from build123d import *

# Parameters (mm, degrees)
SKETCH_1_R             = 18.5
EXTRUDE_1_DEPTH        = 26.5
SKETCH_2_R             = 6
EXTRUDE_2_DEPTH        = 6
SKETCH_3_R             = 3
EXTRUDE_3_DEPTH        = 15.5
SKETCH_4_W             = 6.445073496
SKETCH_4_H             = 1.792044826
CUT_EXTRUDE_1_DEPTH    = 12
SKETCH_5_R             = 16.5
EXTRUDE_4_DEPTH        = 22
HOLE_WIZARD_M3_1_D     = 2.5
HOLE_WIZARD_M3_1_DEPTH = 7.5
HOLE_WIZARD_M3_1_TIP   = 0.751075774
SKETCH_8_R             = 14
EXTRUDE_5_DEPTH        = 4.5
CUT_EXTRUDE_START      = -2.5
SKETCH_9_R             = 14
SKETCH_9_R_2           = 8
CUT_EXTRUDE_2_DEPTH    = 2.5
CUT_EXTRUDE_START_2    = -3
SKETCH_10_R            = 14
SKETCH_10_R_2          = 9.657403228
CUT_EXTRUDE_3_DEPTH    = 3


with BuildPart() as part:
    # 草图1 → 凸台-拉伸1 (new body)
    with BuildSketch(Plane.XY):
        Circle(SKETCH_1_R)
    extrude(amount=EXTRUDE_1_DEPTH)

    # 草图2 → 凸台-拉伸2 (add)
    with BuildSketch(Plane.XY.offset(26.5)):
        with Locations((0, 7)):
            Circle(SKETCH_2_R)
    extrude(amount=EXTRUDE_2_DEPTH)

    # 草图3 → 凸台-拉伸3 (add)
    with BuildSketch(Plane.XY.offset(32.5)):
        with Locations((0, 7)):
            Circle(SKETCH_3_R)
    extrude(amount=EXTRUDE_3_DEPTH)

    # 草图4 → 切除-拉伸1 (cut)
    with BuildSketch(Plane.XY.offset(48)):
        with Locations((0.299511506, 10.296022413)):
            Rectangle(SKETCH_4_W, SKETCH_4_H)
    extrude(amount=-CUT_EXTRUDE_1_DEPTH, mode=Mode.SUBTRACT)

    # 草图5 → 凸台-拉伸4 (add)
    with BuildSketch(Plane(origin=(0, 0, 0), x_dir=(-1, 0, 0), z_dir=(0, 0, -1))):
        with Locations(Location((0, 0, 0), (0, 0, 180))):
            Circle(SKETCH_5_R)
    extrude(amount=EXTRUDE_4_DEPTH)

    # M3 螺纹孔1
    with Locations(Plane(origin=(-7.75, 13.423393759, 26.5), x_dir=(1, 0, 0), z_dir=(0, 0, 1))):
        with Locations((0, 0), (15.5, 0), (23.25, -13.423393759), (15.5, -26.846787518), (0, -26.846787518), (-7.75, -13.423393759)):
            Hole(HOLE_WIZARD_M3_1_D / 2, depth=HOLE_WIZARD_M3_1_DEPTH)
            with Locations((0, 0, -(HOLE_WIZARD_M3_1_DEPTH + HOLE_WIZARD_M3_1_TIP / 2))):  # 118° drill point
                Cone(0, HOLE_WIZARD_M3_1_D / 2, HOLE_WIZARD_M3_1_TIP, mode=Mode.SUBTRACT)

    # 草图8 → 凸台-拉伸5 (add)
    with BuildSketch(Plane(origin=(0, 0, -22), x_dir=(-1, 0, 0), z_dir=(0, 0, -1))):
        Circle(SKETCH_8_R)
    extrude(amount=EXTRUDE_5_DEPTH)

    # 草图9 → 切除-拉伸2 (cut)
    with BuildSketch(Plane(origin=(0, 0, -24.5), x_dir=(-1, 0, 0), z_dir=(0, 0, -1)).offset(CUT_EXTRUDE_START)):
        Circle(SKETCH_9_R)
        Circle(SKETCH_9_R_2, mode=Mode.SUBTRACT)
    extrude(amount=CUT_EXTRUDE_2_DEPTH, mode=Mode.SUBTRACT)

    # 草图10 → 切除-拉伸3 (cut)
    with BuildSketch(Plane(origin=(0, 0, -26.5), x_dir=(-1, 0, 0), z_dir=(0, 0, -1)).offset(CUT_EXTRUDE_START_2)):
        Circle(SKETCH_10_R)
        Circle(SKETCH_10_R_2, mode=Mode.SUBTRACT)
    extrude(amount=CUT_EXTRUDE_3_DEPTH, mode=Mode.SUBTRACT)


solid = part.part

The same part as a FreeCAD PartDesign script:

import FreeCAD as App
import Part
import Sketcher
from FreeCAD import Vector

doc = App.newDocument("Part")
body = doc.addObject("PartDesign::Body", "Body")

# Sketch on XY plane
sketch1 = body.newObject("Sketcher::SketchObject", "Sketch")
sketch1.AttachmentSupport = (doc.getObject("XY_Plane"), [""])
sketch1.MapMode = "FlatFace"
sketch1.addGeometry(Part.Circle(Vector(0, 0, 0), Vector(0, 0, 1), 18), False)
sketch1.addConstraint(Sketcher.Constraint("Coincident", 0, 3, -1, 1))
sketch1.addConstraint(Sketcher.Constraint("Diameter", 0, 37.0))
pad1 = body.newObject("PartDesign::Pad", "Pad")
pad1.Profile = sketch1
pad1.Length = 26.5

# Sketch on XY plane
sketch2 = body.newObject("Sketcher::SketchObject", "Sketch001")
sketch2.AttachmentSupport = (doc.getObject("XY_Plane"), [""])
sketch2.MapMode = "FlatFace"
sketch2.AttachmentOffset = App.Placement(Vector(0, 0, 26.5), App.Rotation())
sketch2.addGeometry(Part.Circle(Vector(0, 7, 0), Vector(0, 0, 1), 6), False)
sketch2.addConstraint(Sketcher.Constraint("PointOnObject", 0, 3, -2))
sketch2.addConstraint(Sketcher.Constraint("Diameter", 0, 12.0))
sketch2.addConstraint(Sketcher.Constraint("DistanceY", -1, 1, 0, 3, 7.0))
pad2 = body.newObject("PartDesign::Pad", "Pad001")
pad2.Profile = sketch2
pad2.Length = 6

# Sketch on XY plane
sketch3 = body.newObject("Sketcher::SketchObject", "Sketch002")
sketch3.AttachmentSupport = (doc.getObject("XY_Plane"), [""])
sketch3.MapMode = "FlatFace"
sketch3.AttachmentOffset = App.Placement(Vector(0, 0, 32.5), App.Rotation())
sketch3.addGeometry(Part.Circle(Vector(0, 7, 0), Vector(0, 0, 1), 3), False)
sketch3.addConstraint(Sketcher.Constraint("PointOnObject", 0, 3, -2))
sketch3.addConstraint(Sketcher.Constraint("Diameter", 0, 6.0))
sketch3.addConstraint(Sketcher.Constraint("DistanceY", -1, 1, 0, 3, 7.0))
pad3 = body.newObject("PartDesign::Pad", "Pad002")
pad3.Profile = sketch3
pad3.Length = 15.5

# Sketch on XY plane
sketch4 = body.newObject("Sketcher::SketchObject", "Sketch003")
sketch4.AttachmentSupport = (doc.getObject("XY_Plane"), [""])
sketch4.MapMode = "FlatFace"
sketch4.AttachmentOffset = App.Placement(Vector(0, 0, 48), App.Rotation())
sketch4.addGeometry(Part.LineSegment(Vector(-2.9, 11.2, 0), Vector(-2.9, 9.4, 0)), False)
sketch4.addGeometry(Part.LineSegment(Vector(-2.9, 9.4, 0), Vector(3.5, 9.4, 0)), False)
sketch4.addGeometry(Part.LineSegment(Vector(3.5, 9.4, 0), Vector(3.5, 11.2, 0)), False)
sketch4.addGeometry(Part.LineSegment(Vector(3.5, 11.2, 0), Vector(-2.9, 11.2, 0)), False)
sketch4.addConstraint(Sketcher.Constraint("Coincident", 0, 2, 1, 1))
sketch4.addConstraint(Sketcher.Constraint("Coincident", 1, 2, 2, 1))
sketch4.addConstraint(Sketcher.Constraint("Coincident", 2, 2, 3, 1))
sketch4.addConstraint(Sketcher.Constraint("Coincident", 3, 2, 0, 1))
sketch4.addConstraint(Sketcher.Constraint("Vertical", 0))
sketch4.addConstraint(Sketcher.Constraint("Horizontal", 1))
sketch4.addConstraint(Sketcher.Constraint("Vertical", 2))
sketch4.addConstraint(Sketcher.Constraint("Horizontal", 3))
sketch4.addConstraint(Sketcher.Constraint("DistanceY", -1, 1, 0, 2, 9.4))
sketch4.addConstraint(Sketcher.Constraint("DistanceX", 1, 1, 1, 2, 6.445073))
sketch4.addConstraint(Sketcher.Constraint("DistanceY", 0, 2, 0, 1, 1.792045))
sketch4.addConstraint(Sketcher.Constraint("DistanceX", -1, 1, 1, 2, 3.522048))
pocket1 = body.newObject("PartDesign::Pocket", "Pocket")
pocket1.Profile = sketch4
pocket1.Length = 12

# Sketch on XY plane
sketch5 = body.newObject("Sketcher::SketchObject", "Sketch004")
sketch5.AttachmentSupport = (doc.getObject("XY_Plane"), [""])
sketch5.MapMode = "FlatFace"
sketch5.addGeometry(Part.Circle(Vector(0, 0, 0), Vector(0, 0, 1), 16), False)
sketch5.addConstraint(Sketcher.Constraint("Coincident", 0, 3, -1, 1))
sketch5.addConstraint(Sketcher.Constraint("Diameter", 0, 33.0))
pad4 = body.newObject("PartDesign::Pad", "Pad003")
pad4.Profile = sketch5
pad4.Length = 22
pad4.Reversed = True

# Sketch on XY plane
sketch6 = body.newObject("Sketcher::SketchObject", "Sketch005")
sketch6.AttachmentSupport = (doc.getObject("XY_Plane"), [""])
sketch6.MapMode = "FlatFace"
sketch6.AttachmentOffset = App.Placement(Vector(0, 0, 26.5), App.Rotation())
sketch6.addGeometry(Part.Circle(Vector(-7.8, 13.4, 0), Vector(0, 0, 1), 1.2), False)
sketch6.addGeometry(Part.Circle(Vector(7.8, 13.4, 0), Vector(0, 0, 1), 1.2), False)
sketch6.addGeometry(Part.Circle(Vector(15.5, 0, 0), Vector(0, 0, 1), 1.2), False)
sketch6.addGeometry(Part.Circle(Vector(7.8, -13.4, 0), Vector(0, 0, 1), 1.2), False)
sketch6.addGeometry(Part.Circle(Vector(-7.8, -13.4, 0), Vector(0, 0, 1), 1.2), False)
sketch6.addGeometry(Part.Circle(Vector(-15.5, 0, 0), Vector(0, 0, 1), 1.2), False)
sketch6.addConstraint(Sketcher.Constraint("Equal", 0, 1))
sketch6.addConstraint(Sketcher.Constraint("Equal", 1, 2))
sketch6.addConstraint(Sketcher.Constraint("Equal", 2, 3))
sketch6.addConstraint(Sketcher.Constraint("Equal", 3, 4))
sketch6.addConstraint(Sketcher.Constraint("Equal", 4, 5))
sketch6.addConstraint(Sketcher.Constraint("Symmetric", 0, 3, 3, 3, -1, 1))
sketch6.addConstraint(Sketcher.Constraint("Symmetric", 1, 3, 4, 3, -1, 1))
sketch6.addConstraint(Sketcher.Constraint("Symmetric", 2, 3, 5, 3, -1, 1))
sketch6.addConstraint(Sketcher.Constraint("Symmetric", 0, 3, 1, 3, -2))
sketch6.addConstraint(Sketcher.Constraint("PointOnObject", 2, 3, -1))
sketch6.addConstraint(Sketcher.Constraint("Diameter", 0, 2.5))
sketch6.addConstraint(Sketcher.Constraint("DistanceX", 5, 3, 2, 3, 31.0))
sketch6.addConstraint(Sketcher.Constraint("DistanceX", 0, 3, 1, 3, 15.5))
sketch6.addConstraint(Sketcher.Constraint("DistanceY", -1, 1, 0, 3, 13.423394))
doc.recompute()
hole = body.newObject("PartDesign::Hole", "Hole")
hole.Profile = sketch6
hole.ThreadType = "None"
hole.Diameter = 2.5
hole.DepthType = "Dimension"
hole.Depth = 7.5
hole.DrillPoint = "Angled"
hole.DrillPointAngle = 118

# Sketch on XY plane
sketch7 = body.newObject("Sketcher::SketchObject", "Sketch006")
sketch7.AttachmentSupport = (doc.getObject("XY_Plane"), [""])
sketch7.MapMode = "FlatFace"
sketch7.AttachmentOffset = App.Placement(Vector(0, 0, -22), App.Rotation())
sketch7.addGeometry(Part.Circle(Vector(0, 0, 0), Vector(0, 0, 1), 14), False)
sketch7.addConstraint(Sketcher.Constraint("Coincident", 0, 3, -1, 1))
sketch7.addConstraint(Sketcher.Constraint("Diameter", 0, 28.0))
pad5 = body.newObject("PartDesign::Pad", "Pad004")
pad5.Profile = sketch7
pad5.Length = 4.5
pad5.Reversed = True

# Sketch on XY plane
sketch8 = body.newObject("Sketcher::SketchObject", "Sketch007")
sketch8.AttachmentSupport = (doc.getObject("XY_Plane"), [""])
sketch8.MapMode = "FlatFace"
sketch8.AttachmentOffset = App.Placement(Vector(0, 0, -22), App.Rotation())
sketch8.addGeometry(Part.Circle(Vector(0, 0, 0), Vector(0, 0, 1), 14), False)
sketch8.addGeometry(Part.Circle(Vector(0, 0, 0), Vector(0, 0, 1), 8), False)
sketch8.addConstraint(Sketcher.Constraint("Coincident", 0, 3, -1, 1))
sketch8.addConstraint(Sketcher.Constraint("Coincident", 1, 3, -1, 1))
sketch8.addConstraint(Sketcher.Constraint("Diameter", 0, 28.0))
sketch8.addConstraint(Sketcher.Constraint("Diameter", 1, 16.0))
pocket2 = body.newObject("PartDesign::Pocket", "Pocket001")
pocket2.Profile = sketch8
pocket2.Length = 2.5

# Sketch on XY plane
sketch9 = body.newObject("Sketcher::SketchObject", "Sketch008")
sketch9.AttachmentSupport = (doc.getObject("XY_Plane"), [""])
sketch9.MapMode = "FlatFace"
sketch9.AttachmentOffset = App.Placement(Vector(0, 0, -23.5), App.Rotation())
sketch9.addGeometry(Part.Circle(Vector(0, 0, 0), Vector(0, 0, 1), 14), False)
sketch9.addGeometry(Part.Circle(Vector(0, 0, 0), Vector(0, 0, 1), 10), False)
sketch9.addConstraint(Sketcher.Constraint("Coincident", 0, 3, -1, 1))
sketch9.addConstraint(Sketcher.Constraint("Coincident", 1, 3, -1, 1))
sketch9.addConstraint(Sketcher.Constraint("Diameter", 0, 28.0))
sketch9.addConstraint(Sketcher.Constraint("Diameter", 1, 19.314806))
pocket3 = body.newObject("PartDesign::Pocket", "Pocket002")
pocket3.Profile = sketch9
pocket3.Length = 3

doc.recompute()
